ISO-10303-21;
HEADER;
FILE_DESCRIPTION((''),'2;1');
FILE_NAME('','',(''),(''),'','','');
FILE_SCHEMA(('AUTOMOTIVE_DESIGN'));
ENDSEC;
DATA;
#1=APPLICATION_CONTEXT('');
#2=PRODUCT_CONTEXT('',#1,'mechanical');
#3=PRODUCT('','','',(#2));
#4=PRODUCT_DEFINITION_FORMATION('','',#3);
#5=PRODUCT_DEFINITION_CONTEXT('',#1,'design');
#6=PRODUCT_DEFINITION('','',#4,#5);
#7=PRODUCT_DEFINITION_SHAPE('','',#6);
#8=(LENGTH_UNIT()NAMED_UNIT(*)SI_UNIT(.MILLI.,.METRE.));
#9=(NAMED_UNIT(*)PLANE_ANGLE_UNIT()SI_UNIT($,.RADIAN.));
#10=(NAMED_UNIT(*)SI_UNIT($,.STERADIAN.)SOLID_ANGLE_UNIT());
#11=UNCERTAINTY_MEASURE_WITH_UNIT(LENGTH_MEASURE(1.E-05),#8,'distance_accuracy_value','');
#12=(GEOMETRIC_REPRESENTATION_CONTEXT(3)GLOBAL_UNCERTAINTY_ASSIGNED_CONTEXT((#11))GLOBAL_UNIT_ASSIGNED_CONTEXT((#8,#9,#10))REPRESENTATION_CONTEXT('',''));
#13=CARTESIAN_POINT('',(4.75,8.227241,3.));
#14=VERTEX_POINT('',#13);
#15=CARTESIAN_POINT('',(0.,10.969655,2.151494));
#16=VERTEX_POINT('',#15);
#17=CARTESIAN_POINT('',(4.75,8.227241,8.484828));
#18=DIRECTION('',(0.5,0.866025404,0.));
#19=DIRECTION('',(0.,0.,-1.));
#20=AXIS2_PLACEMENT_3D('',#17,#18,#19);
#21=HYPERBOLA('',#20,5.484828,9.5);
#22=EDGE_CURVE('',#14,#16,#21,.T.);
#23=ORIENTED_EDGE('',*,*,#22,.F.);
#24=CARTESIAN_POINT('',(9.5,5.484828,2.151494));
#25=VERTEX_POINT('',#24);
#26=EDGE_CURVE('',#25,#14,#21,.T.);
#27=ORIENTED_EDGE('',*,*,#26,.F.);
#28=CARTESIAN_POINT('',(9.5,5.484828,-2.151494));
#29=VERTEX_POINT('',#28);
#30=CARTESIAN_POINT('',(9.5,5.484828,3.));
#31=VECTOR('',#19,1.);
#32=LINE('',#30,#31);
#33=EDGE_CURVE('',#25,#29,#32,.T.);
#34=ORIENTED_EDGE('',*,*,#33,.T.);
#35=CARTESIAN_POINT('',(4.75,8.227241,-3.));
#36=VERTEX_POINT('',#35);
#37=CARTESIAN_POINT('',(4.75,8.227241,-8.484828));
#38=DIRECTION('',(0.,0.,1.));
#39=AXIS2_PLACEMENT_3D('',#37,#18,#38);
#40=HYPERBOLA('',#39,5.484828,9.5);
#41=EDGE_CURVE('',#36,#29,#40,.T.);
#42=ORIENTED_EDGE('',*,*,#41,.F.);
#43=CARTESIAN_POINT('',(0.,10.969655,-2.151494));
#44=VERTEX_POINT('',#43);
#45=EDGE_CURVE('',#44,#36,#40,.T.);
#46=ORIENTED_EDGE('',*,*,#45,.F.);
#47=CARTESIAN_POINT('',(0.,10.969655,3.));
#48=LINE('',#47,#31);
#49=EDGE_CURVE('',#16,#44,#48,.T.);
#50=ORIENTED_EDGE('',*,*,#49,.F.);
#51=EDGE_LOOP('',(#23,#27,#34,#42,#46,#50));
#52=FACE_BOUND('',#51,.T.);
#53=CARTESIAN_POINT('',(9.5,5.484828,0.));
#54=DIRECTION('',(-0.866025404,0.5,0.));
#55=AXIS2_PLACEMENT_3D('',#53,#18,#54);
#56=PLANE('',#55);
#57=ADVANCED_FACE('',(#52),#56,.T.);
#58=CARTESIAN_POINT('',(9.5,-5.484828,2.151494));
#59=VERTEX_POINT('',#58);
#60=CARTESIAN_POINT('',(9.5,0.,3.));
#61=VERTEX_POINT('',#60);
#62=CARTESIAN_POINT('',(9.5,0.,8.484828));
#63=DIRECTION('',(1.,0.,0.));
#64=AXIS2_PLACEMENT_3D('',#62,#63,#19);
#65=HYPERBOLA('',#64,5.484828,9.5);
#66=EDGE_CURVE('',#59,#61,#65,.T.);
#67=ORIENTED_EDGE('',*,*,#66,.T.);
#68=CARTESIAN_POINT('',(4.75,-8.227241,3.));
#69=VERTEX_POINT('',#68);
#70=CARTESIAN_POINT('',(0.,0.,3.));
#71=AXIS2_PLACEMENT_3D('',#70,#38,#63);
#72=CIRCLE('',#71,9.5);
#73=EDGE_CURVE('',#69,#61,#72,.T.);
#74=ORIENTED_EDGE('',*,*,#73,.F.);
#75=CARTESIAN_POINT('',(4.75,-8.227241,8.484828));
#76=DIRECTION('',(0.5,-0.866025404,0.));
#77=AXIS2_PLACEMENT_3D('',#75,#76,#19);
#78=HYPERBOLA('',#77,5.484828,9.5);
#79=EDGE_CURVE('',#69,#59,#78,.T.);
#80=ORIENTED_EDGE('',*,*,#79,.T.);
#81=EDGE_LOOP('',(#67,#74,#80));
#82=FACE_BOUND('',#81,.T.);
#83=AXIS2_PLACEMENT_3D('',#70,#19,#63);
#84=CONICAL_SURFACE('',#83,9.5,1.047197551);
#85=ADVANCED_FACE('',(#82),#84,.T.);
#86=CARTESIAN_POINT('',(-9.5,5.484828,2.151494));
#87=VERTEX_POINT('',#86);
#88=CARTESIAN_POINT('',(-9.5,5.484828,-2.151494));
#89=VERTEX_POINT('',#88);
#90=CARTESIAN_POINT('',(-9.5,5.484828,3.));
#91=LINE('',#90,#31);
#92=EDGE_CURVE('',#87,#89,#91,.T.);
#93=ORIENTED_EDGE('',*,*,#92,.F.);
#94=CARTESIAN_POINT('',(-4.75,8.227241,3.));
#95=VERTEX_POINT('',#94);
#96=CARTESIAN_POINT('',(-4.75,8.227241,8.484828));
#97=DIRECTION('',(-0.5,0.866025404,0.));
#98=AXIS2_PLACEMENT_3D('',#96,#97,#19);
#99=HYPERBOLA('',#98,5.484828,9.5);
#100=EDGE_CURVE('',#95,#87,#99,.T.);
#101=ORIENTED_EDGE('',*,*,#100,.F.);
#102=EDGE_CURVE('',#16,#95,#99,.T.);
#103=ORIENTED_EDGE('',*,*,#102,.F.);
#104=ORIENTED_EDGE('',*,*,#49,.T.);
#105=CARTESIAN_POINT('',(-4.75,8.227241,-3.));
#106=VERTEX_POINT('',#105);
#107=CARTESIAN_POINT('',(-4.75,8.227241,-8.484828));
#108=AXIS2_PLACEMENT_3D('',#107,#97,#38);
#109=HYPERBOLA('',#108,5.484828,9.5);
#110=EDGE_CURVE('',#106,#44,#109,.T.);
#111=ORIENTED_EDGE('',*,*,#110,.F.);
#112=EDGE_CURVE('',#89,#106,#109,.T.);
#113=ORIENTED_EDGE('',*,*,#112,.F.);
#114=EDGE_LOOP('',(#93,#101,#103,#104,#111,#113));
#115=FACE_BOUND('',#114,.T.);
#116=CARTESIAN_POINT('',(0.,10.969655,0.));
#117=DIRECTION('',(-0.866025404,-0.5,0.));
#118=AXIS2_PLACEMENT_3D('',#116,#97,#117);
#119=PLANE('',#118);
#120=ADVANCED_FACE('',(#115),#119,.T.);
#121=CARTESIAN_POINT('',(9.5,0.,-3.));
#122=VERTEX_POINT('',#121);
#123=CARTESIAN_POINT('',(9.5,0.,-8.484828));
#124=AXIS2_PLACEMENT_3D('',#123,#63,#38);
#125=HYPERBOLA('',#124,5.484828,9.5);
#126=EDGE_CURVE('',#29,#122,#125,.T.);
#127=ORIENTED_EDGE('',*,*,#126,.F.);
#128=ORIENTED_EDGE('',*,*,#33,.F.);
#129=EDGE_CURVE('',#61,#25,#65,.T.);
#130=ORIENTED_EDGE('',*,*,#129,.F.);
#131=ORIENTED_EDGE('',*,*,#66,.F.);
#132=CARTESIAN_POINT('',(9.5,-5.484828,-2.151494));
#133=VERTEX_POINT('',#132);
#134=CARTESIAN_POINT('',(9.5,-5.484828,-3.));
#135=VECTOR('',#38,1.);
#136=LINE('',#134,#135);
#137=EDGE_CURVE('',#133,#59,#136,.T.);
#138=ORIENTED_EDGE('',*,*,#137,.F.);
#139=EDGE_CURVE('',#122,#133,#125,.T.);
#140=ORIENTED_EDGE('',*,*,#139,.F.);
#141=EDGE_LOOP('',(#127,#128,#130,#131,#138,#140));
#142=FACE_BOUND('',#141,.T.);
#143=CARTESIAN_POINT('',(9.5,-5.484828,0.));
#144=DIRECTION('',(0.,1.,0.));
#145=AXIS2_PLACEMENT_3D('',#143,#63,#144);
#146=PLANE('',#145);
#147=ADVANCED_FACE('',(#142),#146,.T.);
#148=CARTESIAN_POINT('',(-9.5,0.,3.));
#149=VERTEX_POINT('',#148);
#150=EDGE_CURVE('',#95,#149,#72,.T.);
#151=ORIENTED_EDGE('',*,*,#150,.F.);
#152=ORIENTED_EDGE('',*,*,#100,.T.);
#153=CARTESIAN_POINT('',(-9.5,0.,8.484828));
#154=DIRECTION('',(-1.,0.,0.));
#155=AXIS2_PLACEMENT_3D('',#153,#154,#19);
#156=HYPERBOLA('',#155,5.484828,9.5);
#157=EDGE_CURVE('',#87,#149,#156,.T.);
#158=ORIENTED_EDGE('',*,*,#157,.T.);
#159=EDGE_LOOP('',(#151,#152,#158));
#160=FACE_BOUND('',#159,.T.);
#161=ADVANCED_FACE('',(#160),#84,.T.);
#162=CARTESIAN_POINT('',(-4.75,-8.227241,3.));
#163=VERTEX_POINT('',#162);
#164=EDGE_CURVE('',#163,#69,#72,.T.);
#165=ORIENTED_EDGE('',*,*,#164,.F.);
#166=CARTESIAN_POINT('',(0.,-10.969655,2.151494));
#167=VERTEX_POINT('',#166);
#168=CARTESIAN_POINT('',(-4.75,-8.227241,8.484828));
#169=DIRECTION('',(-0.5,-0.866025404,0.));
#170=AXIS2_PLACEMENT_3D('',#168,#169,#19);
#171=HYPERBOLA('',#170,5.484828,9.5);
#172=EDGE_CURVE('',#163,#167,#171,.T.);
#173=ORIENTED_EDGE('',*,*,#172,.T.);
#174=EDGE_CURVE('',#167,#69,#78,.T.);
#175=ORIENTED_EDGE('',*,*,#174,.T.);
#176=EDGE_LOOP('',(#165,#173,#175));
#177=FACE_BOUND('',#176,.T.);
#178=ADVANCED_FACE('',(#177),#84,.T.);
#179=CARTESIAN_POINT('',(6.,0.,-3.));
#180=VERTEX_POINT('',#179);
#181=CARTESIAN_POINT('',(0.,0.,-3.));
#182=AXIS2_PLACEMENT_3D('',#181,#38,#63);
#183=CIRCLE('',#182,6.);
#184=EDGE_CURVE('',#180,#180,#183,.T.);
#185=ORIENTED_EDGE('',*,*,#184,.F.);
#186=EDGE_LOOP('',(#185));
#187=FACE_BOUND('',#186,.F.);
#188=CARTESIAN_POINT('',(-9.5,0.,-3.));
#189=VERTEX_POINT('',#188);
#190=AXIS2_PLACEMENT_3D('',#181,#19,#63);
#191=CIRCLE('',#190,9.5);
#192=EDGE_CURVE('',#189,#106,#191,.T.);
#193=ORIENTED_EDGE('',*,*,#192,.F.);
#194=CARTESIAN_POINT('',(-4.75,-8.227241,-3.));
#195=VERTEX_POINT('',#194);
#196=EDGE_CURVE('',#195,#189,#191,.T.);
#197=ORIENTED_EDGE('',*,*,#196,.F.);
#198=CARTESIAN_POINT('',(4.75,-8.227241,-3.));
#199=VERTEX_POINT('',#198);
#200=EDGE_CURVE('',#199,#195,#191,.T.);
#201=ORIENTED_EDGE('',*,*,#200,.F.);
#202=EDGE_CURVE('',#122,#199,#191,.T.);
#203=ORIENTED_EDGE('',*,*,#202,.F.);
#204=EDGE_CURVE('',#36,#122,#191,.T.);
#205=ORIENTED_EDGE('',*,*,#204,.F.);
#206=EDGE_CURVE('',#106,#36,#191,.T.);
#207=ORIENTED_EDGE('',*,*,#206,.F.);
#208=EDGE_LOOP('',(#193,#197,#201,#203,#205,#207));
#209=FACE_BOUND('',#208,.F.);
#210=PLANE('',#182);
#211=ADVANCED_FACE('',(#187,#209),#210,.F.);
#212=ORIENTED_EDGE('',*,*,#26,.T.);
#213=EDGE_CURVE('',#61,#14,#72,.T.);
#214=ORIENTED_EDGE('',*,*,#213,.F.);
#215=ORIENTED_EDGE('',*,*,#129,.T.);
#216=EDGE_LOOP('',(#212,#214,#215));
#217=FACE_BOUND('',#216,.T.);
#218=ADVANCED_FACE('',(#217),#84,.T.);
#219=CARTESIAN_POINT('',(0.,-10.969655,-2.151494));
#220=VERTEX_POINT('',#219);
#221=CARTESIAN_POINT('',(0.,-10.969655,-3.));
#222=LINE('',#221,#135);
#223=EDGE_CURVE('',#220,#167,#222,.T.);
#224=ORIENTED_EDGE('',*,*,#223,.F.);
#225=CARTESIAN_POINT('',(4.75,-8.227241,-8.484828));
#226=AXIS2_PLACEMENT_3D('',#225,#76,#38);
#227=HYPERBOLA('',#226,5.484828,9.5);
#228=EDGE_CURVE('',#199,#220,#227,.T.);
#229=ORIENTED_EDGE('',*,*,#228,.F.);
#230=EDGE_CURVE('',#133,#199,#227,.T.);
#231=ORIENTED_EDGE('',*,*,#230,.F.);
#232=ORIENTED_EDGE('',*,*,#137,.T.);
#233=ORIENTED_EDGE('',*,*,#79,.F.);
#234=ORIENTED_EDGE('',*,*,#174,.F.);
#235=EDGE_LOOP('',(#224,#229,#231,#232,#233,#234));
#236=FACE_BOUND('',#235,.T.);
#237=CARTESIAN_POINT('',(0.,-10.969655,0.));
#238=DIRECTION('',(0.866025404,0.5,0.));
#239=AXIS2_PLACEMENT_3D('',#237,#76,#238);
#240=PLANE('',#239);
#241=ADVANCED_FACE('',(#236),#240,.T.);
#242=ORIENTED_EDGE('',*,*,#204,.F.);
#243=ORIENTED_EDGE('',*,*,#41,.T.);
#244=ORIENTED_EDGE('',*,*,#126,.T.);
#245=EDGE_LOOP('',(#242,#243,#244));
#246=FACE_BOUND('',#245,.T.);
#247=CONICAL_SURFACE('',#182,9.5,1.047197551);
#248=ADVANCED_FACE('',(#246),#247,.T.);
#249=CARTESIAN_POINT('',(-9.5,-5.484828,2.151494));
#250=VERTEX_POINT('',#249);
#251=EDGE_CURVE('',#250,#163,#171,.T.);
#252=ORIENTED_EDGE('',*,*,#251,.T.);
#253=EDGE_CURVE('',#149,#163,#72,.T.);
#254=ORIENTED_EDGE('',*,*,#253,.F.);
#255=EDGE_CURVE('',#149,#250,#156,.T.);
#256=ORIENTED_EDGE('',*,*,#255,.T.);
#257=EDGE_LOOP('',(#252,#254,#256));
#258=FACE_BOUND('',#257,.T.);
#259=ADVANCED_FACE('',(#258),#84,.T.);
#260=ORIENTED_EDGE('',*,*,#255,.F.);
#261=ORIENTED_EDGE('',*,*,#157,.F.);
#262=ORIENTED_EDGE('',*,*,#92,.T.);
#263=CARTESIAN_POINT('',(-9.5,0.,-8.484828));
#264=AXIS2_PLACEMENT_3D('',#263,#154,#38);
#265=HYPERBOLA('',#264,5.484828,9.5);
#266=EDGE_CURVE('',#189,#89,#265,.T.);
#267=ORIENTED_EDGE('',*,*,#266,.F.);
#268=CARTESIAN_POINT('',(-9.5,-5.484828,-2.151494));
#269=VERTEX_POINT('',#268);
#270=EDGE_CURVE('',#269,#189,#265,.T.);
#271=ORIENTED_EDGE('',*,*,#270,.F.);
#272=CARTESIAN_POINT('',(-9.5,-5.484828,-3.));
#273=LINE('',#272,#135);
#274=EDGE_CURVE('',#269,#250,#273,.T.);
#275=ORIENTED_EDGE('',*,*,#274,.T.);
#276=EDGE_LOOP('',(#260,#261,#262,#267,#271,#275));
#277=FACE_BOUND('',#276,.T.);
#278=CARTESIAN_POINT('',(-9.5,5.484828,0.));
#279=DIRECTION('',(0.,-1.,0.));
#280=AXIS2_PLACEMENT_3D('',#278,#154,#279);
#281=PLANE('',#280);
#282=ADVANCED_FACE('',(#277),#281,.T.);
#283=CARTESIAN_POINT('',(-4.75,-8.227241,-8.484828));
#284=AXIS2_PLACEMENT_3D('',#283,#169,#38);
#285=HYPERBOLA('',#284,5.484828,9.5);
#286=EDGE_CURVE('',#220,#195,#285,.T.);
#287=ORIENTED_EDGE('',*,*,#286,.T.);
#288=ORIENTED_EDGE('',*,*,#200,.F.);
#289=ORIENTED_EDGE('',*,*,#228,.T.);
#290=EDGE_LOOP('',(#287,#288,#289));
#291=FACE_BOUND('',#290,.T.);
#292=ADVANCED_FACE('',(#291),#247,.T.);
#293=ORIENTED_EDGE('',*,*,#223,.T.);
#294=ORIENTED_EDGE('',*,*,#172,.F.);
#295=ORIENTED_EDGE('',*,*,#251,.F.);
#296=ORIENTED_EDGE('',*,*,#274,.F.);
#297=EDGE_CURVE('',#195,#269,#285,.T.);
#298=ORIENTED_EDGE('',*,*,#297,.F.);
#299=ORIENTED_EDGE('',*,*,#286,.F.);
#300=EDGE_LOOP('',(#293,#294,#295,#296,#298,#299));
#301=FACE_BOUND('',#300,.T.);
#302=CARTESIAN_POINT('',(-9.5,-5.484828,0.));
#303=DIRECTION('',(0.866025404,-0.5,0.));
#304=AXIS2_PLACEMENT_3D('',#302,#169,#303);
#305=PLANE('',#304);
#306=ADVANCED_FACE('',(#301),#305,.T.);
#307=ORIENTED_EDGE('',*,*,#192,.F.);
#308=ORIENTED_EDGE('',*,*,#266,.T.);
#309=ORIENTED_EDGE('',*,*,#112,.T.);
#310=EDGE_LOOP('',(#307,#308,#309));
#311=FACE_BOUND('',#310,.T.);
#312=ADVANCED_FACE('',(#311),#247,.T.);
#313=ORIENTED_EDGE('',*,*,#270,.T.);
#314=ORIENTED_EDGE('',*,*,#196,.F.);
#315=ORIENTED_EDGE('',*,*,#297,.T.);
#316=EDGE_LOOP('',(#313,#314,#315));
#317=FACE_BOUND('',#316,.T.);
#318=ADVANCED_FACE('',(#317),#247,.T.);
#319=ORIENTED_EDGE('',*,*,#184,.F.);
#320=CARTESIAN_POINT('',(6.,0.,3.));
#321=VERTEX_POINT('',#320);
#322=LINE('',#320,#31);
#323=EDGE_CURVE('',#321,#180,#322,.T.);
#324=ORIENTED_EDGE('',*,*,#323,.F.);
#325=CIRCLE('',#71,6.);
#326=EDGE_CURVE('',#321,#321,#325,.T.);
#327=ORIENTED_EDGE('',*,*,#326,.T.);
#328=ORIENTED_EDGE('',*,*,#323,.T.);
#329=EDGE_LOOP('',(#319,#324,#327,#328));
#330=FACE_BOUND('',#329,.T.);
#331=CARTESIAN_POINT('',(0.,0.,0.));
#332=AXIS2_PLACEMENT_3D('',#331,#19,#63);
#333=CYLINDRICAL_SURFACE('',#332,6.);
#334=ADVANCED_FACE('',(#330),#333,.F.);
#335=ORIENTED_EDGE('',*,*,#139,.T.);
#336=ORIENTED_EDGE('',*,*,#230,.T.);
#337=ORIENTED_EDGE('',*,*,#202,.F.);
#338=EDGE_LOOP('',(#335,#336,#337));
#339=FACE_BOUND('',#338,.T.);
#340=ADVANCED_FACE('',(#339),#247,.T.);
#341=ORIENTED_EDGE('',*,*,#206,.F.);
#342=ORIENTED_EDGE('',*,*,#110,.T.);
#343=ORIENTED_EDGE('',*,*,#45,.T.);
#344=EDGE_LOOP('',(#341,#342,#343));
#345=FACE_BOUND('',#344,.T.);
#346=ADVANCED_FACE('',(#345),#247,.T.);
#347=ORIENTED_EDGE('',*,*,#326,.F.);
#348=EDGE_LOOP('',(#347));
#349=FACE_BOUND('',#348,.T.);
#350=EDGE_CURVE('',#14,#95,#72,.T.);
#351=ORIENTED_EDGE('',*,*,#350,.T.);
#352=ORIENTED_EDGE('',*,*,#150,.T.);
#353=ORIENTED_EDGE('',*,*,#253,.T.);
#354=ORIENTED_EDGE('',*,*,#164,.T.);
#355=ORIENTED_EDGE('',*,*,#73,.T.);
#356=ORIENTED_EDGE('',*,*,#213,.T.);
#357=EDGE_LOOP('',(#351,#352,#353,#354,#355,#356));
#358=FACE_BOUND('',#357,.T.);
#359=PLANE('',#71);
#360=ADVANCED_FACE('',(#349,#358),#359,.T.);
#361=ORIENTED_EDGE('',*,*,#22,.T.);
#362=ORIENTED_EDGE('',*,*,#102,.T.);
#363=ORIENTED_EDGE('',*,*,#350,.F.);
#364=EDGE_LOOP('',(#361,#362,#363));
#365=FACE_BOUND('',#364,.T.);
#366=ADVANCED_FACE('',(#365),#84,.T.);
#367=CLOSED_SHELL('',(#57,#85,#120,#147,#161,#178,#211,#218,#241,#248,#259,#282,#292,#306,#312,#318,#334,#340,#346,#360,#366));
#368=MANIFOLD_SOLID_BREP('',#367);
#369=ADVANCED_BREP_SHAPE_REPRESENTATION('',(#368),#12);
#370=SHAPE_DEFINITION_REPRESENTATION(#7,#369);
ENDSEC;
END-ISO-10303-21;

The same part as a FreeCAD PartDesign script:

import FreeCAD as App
import Part
import Sketcher
Q = App.Units.Quantity


def faces_at(feature, points):
    """Names of the faces that lie closest to the given points."""
    faces = feature.Shape.Faces
    near = lambda p: min(range(len(faces)), key=lambda i: faces[i].distToShape(Part.Vertex(*p))[0])
    return sorted({f"Face{near(p) + 1}" for p in points})

doc = App.newDocument("Part")
body = doc.addObject("PartDesign::Body", "Body")

# Sketch on XY plane
sketch1 = body.newObject("Sketcher::SketchObject", "Sketch")
sketch1.AttachmentSupport = (doc.getObject("XY_Plane"), [""])
sketch1.MapMode = "FlatFace"
sketch1.addGeometry(Part.LineSegment(App.Vector(-9.5, 5.484828, 0), App.Vector(-9.5, -5.484828, 0)), False)
sketch1.addGeometry(Part.LineSegment(App.Vector(-9.5, -5.484828, 0), App.Vector(0, -10.969655, 0)), False)
sketch1.addGeometry(Part.LineSegment(App.Vector(0, -10.969655, 0), App.Vector(9.5, -5.484828, 0)), False)
sketch1.addGeometry(Part.LineSegment(App.Vector(9.5, -5.484828, 0), App.Vector(9.5, 5.484828, 0)), False)
sketch1.addGeometry(Part.LineSegment(App.Vector(9.5, 5.484828, 0), App.Vector(0, 10.969655, 0)), False)
sketch1.addGeometry(Part.LineSegment(App.Vector(0, 10.969655, 0), App.Vector(-9.5, 5.484828, 0)), False)
sketch1.addGeometry(Part.Circle(App.Vector(0, 0, 0), App.Vector(0, 0, 1), 6), False)
sketch1.addConstraint(Sketcher.Constraint("Coincident", 0, 2, 1, 1))
sketch1.addConstraint(Sketcher.Constraint("Coincident", 1, 2, 2, 1))
sketch1.addConstraint(Sketcher.Constraint("Coincident", 2, 2, 3, 1))
sketch1.addConstraint(Sketcher.Constraint("Coincident", 3, 2, 4, 1))
sketch1.addConstraint(Sketcher.Constraint("Coincident", 4, 2, 5, 1))
sketch1.addConstraint(Sketcher.Constraint("Coincident", 5, 2, 0, 1))
sketch1.addConstraint(Sketcher.Constraint("Vertical", 0))
sketch1.addConstraint(Sketcher.Constraint("Vertical", 3))
sketch1.addConstraint(Sketcher.Constraint("Coincident", 6, 3, -1, 1))
sketch1.addConstraint(Sketcher.Constraint("Symmetric", 0, 2, 3, 2, -1, 1))
sketch1.addConstraint(Sketcher.Constraint("Symmetric", 1, 2, 4, 2, -1, 1))
sketch1.addConstraint(Sketcher.Constraint("PointOnObject", 1, 2, -2))
sketch1.addConstraint(Sketcher.Constraint("Parallel", 2, 5))
sketch1.addConstraint(Sketcher.Constraint("Horizontal", 0, 2, 2, 2))
sketch1.addConstraint(Sketcher.Constraint("Diameter", 6, 12.0))
sketch1.addConstraint(Sketcher.Constraint("Angle", 1, Q("-30 deg")))
sketch1.addConstraint(Sketcher.Constraint("DistanceX", 0, 2, 2, 2, 19.0))
sketch1.addConstraint(Sketcher.Constraint("DistanceY", 0, 2, 0, 1, 10.969655))
pad1 = body.newObject("PartDesign::Pad", "Pad")
pad1.Profile = sketch1
pad1.Length = 6
pad1.Midplane = True
body2 = doc.addObject("PartDesign::Body", "Body001")

# Sketch on XY plane
sketch2 = body2.newObject("Sketcher::SketchObject", "Sketch001")
sketch2.AttachmentSupport = (doc.getObject("XY_Plane001"), [""])
sketch2.MapMode = "FlatFace"
sketch2.AttachmentOffset = App.Placement(App.Vector(0, 0, 3), App.Rotation())
sketch2.addGeometry(Part.LineSegment(App.Vector(-23.856, 25.326, 0), App.Vector(-23.856, -25.326, 0)), False)
sketch2.addGeometry(Part.LineSegment(App.Vector(-23.856, -25.326, 0), App.Vector(23.856, -25.326, 0)), False)
sketch2.addGeometry(Part.LineSegment(App.Vector(23.856, -25.326, 0), App.Vector(23.856, 25.326, 0)), False)
sketch2.addGeometry(Part.LineSegment(App.Vector(23.856, 25.326, 0), App.Vector(-23.856, 25.326, 0)), False)
sketch2.addGeometry(Part.Circle(App.Vector(0, 0, 0), App.Vector(0, 0, 1), 9.5), False)
sketch2.addConstraint(Sketcher.Constraint("Coincident", 0, 2, 1, 1))
sketch2.addConstraint(Sketcher.Constraint("Coincident", 1, 2, 2, 1))
sketch2.addConstraint(Sketcher.Constraint("Coincident", 2, 2, 3, 1))
sketch2.addConstraint(Sketcher.Constraint("Coincident", 3, 2, 0, 1))
sketch2.addConstraint(Sketcher.Constraint("Vertical", 0))
sketch2.addConstraint(Sketcher.Constraint("Horizontal", 1))
sketch2.addConstraint(Sketcher.Constraint("Vertical", 2))
sketch2.addConstraint(Sketcher.Constraint("Horizontal", 3))
sketch2.addConstraint(Sketcher.Constraint("Coincident", 4, 3, -1, 1))
sketch2.addConstraint(Sketcher.Constraint("Symmetric", 0, 2, 2, 2, -1, 1))
sketch2.addConstraint(Sketcher.Constraint("Diameter", 4, 19.0))
sketch2.addConstraint(Sketcher.Constraint("DistanceX", 1, 1, 1, 2, 47.712))
sketch2.addConstraint(Sketcher.Constraint("DistanceY", 0, 2, 0, 1, 50.652))
pad2 = body2.newObject("PartDesign::Pad", "Pad001")
pad2.Profile = sketch2
pad2.Length = 6
pad2.Reversed = True
doc.recompute()

datumplane = body2.newObject("PartDesign::Plane", "DatumPlane")
datumplane.AttachmentSupport = (doc.getObject("XY_Plane001"), [""])
datumplane.MapMode = "FlatFace"
datumplane.AttachmentOffset = App.Placement(App.Vector(0, 0, 3), App.Rotation())
draft = body2.newObject("PartDesign::Draft", "Draft")
draft.Base = (pad2, faces_at(pad2, [
    (0, -25.326, 0),
    (23.856, 0, 0),
    (0, 25.326, 0),
    (-23.856, 0, 0),
    (-9.5, 0, 0),
]))
draft.NeutralPlane = (datumplane, [""])
draft.Angle = 60
draft.Reversed = True
doc.recompute()

boolean = body.newObject("PartDesign::Boolean", "Boolean")
boolean.Type = "Cut"
boolean.addObjects([body2])
body3 = doc.addObject("PartDesign::Body", "Body002")

# Sketch on XY plane
sketch3 = body3.newObject("Sketcher::SketchObject", "Sketch002")
sketch3.AttachmentSupport = (doc.getObject("XY_Plane002"), [""])
sketch3.MapMode = "FlatFace"
sketch3.AttachmentOffset = App.Placement(App.Vector(0, 0, -3), App.Rotation())
sketch3.addGeometry(Part.LineSegment(App.Vector(-23.856, -25.326, 0), App.Vector(-23.856, 25.326, 0)), False)
sketch3.addGeometry(Part.LineSegment(App.Vector(-23.856, 25.326, 0), App.Vector(23.856, 25.326, 0)), False)
sketch3.addGeometry(Part.LineSegment(App.Vector(23.856, 25.326, 0), App.Vector(23.856, -25.326, 0)), False)
sketch3.addGeometry(Part.LineSegment(App.Vector(23.856, -25.326, 0), App.Vector(-23.856, -25.326, 0)), False)
sketch3.addGeometry(Part.Circle(App.Vector(0, 0, 0), App.Vector(0, 0, 1), 9.5), False)
sketch3.addConstraint(Sketcher.Constraint("Coincident", 0, 2, 1, 1))
sketch3.addConstraint(Sketcher.Constraint("Coincident", 1, 2, 2, 1))
sketch3.addConstraint(Sketcher.Constraint("Coincident", 2, 2, 3, 1))
sketch3.addConstraint(Sketcher.Constraint("Coincident", 3, 2, 0, 1))
sketch3.addConstraint(Sketcher.Constraint("Vertical", 0))
sketch3.addConstraint(Sketcher.Constraint("Horizontal", 1))
sketch3.addConstraint(Sketcher.Constraint("Vertical", 2))
sketch3.addConstraint(Sketcher.Constraint("Horizontal", 3))
sketch3.addConstraint(Sketcher.Constraint("Coincident", 4, 3, -1, 1))
sketch3.addConstraint(Sketcher.Constraint("Symmetric", 0, 2, 2, 2, -1, 1))
sketch3.addConstraint(Sketcher.Constraint("Diameter", 4, 19.0))
sketch3.addConstraint(Sketcher.Constraint("DistanceX", 1, 1, 1, 2, 47.712))
sketch3.addConstraint(Sketcher.Constraint("DistanceY", 0, 1, 0, 2, 50.652))
pad3 = body3.newObject("PartDesign::Pad", "Pad002")
pad3.Profile = sketch3
pad3.Length = 6
doc.recompute()

datumplane2 = body3.newObject("PartDesign::Plane", "DatumPlane001")
datumplane2.AttachmentSupport = (doc.getObject("XY_Plane002"), [""])
datumplane2.MapMode = "FlatFace"
datumplane2.AttachmentOffset = App.Placement(App.Vector(0, 0, -3), App.Rotation())
draft2 = body3.newObject("PartDesign::Draft", "Draft001")
draft2.Base = (pad3, faces_at(pad3, [
    (0, -25.326, 0),
    (23.856, 0, 0),
    (0, 25.326, 0),
    (-23.856, 0, 0),
    (-9.5, 0, 0),
]))
draft2.NeutralPlane = (datumplane2, [""])
draft2.Angle = 60
draft2.Reversed = False
doc.recompute()

boolean2 = body.newObject("PartDesign::Boolean", "Boolean001")
boolean2.Type = "Cut"
boolean2.addObjects([body3])

doc.recompute()
